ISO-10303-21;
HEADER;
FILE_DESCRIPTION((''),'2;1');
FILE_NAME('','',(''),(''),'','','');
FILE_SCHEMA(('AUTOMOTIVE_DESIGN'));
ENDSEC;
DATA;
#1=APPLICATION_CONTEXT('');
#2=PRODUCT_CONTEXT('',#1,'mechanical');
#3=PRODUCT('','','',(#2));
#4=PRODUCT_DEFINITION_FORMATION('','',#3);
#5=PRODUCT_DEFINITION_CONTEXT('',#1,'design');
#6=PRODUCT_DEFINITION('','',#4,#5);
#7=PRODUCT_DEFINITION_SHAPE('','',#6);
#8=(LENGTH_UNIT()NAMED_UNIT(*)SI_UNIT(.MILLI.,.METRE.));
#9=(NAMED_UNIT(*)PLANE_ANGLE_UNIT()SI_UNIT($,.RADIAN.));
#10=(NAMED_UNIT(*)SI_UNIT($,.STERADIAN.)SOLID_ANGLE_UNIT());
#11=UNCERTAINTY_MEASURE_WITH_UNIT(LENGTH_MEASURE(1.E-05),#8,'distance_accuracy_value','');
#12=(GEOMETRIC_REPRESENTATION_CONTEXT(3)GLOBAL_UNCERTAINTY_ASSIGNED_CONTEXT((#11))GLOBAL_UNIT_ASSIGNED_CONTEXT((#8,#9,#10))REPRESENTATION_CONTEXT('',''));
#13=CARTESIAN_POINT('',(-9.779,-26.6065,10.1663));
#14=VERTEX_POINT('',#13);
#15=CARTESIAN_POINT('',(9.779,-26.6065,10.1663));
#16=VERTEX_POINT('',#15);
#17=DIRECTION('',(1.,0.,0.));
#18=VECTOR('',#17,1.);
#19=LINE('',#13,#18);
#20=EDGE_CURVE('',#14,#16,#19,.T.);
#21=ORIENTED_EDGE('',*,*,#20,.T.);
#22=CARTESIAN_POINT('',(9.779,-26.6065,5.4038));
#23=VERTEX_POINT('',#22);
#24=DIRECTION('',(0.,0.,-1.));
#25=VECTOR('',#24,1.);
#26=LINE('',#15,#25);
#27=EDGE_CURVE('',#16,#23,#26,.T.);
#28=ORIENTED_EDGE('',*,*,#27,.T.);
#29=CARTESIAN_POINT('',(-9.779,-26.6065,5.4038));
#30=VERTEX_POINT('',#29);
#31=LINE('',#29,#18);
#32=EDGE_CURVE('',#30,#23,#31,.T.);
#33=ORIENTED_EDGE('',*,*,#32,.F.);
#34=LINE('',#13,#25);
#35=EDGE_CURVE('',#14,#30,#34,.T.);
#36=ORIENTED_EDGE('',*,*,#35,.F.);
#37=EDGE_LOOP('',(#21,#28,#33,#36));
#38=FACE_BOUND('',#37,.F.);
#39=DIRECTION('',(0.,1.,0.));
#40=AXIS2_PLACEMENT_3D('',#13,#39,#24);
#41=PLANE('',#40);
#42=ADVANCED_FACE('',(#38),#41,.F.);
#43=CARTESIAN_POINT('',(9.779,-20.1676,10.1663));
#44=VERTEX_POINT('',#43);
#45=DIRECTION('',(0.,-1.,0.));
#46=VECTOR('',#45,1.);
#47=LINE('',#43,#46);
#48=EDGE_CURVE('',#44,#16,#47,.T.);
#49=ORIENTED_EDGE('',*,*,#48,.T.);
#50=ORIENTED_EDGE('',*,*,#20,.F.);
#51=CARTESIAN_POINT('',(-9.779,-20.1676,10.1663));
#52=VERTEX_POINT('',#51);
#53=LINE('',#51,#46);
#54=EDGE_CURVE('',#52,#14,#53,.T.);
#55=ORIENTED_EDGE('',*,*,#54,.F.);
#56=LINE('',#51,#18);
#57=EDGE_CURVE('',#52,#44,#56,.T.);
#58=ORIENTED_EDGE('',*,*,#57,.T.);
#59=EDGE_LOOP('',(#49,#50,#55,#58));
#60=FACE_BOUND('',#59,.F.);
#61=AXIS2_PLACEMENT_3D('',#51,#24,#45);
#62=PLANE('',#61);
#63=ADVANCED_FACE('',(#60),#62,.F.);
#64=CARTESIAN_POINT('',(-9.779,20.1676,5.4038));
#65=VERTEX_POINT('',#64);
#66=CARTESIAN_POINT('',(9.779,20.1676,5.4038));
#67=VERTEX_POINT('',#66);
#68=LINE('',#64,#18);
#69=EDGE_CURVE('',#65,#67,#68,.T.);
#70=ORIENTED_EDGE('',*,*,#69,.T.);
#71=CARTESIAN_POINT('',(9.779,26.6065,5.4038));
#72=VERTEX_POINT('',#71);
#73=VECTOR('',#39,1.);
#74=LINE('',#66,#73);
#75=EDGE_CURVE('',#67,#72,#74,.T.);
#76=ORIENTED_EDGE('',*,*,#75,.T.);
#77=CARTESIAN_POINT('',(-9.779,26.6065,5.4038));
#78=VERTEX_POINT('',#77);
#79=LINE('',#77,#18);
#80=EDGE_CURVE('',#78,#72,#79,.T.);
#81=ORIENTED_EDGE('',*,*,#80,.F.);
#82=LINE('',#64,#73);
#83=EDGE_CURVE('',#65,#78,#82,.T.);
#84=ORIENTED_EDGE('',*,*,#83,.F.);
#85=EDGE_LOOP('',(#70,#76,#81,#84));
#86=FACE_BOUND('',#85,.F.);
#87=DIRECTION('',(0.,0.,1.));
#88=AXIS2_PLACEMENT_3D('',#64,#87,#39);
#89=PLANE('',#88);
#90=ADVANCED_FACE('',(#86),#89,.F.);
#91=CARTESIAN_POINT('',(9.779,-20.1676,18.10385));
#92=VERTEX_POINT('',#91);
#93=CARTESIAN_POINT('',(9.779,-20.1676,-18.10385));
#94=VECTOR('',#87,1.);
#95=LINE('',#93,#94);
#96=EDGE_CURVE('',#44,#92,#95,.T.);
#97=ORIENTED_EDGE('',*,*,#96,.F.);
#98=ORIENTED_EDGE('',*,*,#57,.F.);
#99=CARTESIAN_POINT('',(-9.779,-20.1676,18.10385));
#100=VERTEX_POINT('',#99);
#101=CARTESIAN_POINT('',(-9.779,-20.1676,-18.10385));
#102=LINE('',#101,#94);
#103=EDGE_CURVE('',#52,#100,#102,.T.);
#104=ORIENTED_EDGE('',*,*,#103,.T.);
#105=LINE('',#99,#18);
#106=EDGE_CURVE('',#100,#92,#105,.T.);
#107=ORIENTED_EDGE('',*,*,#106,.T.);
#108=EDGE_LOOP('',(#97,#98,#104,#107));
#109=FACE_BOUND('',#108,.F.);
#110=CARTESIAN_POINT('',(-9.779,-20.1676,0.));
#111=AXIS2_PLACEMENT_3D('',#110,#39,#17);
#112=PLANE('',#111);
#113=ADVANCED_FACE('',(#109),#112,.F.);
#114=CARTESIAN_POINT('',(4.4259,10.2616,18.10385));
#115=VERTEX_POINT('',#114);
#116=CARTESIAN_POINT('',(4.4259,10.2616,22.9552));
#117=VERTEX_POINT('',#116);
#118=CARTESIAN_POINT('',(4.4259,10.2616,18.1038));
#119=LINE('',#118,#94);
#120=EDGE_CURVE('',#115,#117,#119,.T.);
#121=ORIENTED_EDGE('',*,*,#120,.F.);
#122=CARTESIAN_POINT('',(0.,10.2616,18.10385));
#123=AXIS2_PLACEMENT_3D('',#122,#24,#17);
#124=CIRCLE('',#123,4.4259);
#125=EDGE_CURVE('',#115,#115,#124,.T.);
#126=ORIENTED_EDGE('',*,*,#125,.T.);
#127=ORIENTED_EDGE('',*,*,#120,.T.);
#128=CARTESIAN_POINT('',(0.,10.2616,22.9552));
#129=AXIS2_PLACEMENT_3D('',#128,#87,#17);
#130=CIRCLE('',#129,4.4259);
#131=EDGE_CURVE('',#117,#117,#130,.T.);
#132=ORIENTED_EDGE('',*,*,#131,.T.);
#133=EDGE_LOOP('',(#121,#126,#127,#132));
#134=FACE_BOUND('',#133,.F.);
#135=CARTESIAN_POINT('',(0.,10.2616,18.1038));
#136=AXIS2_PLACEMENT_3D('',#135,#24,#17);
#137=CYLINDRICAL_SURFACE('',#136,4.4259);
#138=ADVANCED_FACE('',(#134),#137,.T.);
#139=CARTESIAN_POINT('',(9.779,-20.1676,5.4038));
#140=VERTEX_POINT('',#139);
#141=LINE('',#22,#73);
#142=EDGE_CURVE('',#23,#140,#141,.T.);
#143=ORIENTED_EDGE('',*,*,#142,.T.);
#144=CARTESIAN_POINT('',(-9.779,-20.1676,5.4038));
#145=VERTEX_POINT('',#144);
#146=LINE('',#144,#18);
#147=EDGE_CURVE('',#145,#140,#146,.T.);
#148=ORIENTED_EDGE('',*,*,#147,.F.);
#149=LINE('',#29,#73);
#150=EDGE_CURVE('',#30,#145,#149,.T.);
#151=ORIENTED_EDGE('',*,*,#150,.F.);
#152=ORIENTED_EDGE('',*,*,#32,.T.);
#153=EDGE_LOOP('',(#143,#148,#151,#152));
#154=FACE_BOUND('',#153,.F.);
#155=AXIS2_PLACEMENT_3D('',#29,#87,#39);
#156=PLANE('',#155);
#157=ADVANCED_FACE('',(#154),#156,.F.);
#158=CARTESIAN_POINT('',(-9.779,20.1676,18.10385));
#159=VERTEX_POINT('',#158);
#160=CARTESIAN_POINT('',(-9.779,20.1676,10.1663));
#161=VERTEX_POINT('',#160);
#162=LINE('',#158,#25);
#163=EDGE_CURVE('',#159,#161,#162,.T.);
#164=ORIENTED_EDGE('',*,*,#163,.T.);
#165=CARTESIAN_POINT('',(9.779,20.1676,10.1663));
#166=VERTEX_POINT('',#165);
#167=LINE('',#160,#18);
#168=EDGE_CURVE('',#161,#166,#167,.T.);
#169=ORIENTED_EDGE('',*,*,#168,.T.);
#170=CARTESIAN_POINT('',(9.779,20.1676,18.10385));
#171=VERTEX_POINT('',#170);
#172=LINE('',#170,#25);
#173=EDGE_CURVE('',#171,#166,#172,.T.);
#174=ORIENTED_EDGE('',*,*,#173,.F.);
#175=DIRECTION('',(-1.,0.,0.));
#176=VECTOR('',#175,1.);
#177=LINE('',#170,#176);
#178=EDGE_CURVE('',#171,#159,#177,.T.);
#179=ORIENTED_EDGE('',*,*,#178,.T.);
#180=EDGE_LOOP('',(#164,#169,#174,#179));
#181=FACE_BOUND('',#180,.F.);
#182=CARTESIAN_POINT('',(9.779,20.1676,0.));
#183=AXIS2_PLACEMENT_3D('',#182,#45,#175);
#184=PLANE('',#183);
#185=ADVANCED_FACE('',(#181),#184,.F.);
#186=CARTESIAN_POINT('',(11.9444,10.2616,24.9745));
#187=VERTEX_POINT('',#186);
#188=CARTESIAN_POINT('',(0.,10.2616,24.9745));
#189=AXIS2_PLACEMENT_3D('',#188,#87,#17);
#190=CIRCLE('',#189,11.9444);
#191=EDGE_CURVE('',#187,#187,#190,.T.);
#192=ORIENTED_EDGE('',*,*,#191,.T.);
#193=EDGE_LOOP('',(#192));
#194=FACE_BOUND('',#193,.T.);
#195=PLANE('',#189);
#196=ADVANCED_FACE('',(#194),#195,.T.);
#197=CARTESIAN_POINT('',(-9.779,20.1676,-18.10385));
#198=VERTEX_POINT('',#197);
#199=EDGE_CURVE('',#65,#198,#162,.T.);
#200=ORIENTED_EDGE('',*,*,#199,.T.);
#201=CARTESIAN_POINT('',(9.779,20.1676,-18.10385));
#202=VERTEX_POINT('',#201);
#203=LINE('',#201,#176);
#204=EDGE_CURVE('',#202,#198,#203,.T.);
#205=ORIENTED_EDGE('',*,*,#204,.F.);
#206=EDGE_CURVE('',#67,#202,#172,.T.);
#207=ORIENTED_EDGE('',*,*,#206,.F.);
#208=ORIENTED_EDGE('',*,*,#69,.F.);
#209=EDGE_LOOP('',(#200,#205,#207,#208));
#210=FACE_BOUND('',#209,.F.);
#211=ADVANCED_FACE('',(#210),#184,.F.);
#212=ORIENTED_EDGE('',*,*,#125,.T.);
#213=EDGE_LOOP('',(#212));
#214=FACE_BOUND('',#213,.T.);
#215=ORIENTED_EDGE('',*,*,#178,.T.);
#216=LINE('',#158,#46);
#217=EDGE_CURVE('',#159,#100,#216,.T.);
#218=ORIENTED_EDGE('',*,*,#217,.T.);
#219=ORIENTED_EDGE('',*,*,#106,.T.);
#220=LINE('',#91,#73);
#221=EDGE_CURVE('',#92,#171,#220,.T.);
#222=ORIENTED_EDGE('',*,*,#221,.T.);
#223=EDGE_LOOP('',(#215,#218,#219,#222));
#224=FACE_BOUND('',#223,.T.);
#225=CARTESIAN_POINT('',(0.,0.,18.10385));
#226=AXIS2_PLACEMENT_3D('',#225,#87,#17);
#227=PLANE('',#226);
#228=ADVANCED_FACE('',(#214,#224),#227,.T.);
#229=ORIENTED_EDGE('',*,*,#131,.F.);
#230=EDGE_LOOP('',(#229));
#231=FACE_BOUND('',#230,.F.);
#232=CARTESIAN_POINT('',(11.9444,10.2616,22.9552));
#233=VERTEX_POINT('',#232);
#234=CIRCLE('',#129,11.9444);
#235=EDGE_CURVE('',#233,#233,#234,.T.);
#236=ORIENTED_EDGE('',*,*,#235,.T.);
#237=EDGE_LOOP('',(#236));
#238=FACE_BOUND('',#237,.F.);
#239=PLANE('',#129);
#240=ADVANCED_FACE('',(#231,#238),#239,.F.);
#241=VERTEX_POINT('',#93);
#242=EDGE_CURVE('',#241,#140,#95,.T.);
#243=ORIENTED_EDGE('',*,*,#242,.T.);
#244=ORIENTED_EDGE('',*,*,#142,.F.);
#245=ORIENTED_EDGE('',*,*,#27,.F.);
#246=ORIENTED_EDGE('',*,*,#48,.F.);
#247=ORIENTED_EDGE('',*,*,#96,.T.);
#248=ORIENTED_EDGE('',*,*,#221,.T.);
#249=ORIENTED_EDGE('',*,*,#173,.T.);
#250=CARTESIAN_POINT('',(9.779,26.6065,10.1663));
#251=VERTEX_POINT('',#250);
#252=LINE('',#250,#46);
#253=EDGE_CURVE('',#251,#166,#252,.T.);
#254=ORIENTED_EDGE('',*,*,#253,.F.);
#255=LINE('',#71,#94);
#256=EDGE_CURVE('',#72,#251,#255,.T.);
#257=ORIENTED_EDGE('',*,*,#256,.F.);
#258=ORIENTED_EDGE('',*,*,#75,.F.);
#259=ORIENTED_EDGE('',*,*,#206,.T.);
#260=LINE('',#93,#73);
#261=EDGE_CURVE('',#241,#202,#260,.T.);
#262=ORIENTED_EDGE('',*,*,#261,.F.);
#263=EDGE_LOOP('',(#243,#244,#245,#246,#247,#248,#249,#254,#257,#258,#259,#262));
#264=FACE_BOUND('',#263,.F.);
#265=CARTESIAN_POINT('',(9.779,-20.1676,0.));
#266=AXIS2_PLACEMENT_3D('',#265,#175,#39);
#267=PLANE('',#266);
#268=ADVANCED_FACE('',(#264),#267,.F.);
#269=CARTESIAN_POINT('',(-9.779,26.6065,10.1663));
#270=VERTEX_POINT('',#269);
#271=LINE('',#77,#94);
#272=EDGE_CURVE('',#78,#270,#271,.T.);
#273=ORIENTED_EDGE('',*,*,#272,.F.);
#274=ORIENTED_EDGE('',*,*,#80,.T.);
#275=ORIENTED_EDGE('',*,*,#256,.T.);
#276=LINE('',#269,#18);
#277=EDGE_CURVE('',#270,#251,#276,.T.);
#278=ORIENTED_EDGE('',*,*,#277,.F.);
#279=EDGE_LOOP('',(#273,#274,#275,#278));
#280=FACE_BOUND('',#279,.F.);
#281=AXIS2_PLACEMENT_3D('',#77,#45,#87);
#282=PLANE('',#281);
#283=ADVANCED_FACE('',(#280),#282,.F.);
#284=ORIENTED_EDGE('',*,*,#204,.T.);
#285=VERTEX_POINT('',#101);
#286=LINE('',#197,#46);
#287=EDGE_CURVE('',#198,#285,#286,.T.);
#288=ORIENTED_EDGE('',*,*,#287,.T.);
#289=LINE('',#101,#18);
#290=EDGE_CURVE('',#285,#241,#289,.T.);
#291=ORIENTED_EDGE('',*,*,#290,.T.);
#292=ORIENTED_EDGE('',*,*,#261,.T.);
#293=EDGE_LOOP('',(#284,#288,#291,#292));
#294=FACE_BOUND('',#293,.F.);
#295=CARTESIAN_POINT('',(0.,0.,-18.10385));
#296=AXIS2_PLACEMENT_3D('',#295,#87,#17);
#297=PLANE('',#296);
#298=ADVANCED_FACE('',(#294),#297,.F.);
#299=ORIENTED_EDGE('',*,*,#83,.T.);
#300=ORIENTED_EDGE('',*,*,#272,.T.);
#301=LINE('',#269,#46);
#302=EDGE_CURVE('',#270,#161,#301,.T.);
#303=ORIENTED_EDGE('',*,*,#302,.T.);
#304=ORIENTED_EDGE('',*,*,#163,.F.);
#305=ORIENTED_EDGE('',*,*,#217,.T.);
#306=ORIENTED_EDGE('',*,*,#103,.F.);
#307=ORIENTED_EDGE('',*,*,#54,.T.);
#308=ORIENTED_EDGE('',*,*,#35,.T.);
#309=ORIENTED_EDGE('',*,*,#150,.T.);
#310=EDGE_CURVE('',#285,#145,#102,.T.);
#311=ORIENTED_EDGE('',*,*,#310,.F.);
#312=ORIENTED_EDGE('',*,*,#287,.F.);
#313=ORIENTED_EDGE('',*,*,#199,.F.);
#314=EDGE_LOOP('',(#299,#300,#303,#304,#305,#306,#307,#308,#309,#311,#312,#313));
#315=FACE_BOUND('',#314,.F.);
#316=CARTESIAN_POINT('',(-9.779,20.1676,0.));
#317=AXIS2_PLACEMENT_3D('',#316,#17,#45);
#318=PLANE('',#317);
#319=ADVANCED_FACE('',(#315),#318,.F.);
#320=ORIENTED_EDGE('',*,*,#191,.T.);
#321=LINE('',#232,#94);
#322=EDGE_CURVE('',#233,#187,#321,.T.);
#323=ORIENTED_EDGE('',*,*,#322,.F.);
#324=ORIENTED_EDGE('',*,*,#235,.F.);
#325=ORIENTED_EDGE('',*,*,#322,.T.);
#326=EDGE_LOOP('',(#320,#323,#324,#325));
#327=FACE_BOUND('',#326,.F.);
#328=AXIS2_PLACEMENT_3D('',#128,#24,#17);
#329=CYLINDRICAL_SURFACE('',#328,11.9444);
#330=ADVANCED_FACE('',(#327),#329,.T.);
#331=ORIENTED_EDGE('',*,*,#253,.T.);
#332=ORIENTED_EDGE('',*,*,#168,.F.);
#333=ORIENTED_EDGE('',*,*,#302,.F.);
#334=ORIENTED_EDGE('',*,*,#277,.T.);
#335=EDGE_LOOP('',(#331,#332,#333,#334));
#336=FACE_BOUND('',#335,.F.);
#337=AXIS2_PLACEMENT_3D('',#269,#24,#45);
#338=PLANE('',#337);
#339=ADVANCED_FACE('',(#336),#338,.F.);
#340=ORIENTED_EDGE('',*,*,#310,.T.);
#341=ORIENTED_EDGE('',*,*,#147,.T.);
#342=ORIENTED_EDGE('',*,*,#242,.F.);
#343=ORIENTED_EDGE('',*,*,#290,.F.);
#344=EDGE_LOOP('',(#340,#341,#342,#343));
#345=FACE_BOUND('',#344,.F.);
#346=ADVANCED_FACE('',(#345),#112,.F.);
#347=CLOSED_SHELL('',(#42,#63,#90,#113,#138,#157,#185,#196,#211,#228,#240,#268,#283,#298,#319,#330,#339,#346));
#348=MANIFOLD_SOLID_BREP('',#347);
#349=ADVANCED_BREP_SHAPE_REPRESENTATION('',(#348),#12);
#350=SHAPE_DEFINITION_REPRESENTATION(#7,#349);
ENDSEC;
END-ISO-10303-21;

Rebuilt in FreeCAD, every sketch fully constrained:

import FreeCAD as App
import Part
import Sketcher
from FreeCAD import Vector
Q = App.Units.Quantity


def add_polygon(sketch, points):
    """Adds a closed chain of lines whose ends are joined by coincident constraints."""
    first, n = sketch.GeometryCount, len(points)
    for a, b in zip(points, points[1:] + points[:1]):
        sketch.addGeometry(Part.LineSegment(App.Vector(*a, 0), App.Vector(*b, 0)), False)
    for i in range(n):
        sketch.addConstraint(Sketcher.Constraint("Coincident", first + i, 2, first + (i + 1) % n, 1))

doc = App.newDocument("Part")
params = doc.addObject("Spreadsheet::Sheet", "Params")
for row, (alias, value) in enumerate([
    ("sketch1_width", "0.77 in"),
    ("sketch1_height", "1.588 in"),
    ("pad1_length", "1.4255 in"),
    ("pad2_length", "0.191 in"),
    ("pad3_length", "0.0795 in"),
    ("sketch4_height", "0.1875 in"),
    ("pad4_length", "0.77 in"),
], start=1):
    params.set(f"A{row}", alias)
    params.set(f"B{row}", "=" + value)
    params.setAlias(f"B{row}", alias)

body = doc.addObject("PartDesign::Body", "Body")

# Sketch on XY plane
sketch1 = body.newObject("Sketcher::SketchObject", "Sketch")
sketch1.AttachmentSupport = (doc.getObject("XY_Plane"), [""])
sketch1.MapMode = "FlatFace"
add_polygon(sketch1, [(-10, 20), (-10, -20), (10, -20), (10, 20)])  # lines 0-3
sketch1.addConstraint([
    Sketcher.Constraint("Vertical", 0),
    Sketcher.Constraint("Horizontal", 1),
    Sketcher.Constraint("Vertical", 2),
    Sketcher.Constraint("Horizontal", 3),
    Sketcher.Constraint("Symmetric", 0, 2, 2, 2, -1, 1),
    Sketcher.Constraint("DistanceX", 1, 1, 1, 2, Q("0.77 in")),
    Sketcher.Constraint("DistanceY", 0, 2, 0, 1, Q("1.588 in")),
])
sketch1.setExpression("Constraints[9]", "Params.sketch1_width")
sketch1.setExpression("Constraints[10]", "Params.sketch1_height")
pad1 = body.newObject("PartDesign::Pad", "Pad")
pad1.Profile = sketch1
pad1.setExpression("Length", "Params.pad1_length")
pad1.Midplane = True

# Sketch on XY plane
sketch2 = body.newObject("Sketcher::SketchObject", "Sketch001")
sketch2.AttachmentSupport = (doc.getObject("XY_Plane"), [""])
sketch2.MapMode = "FlatFace"
sketch2.AttachmentOffset = App.Placement(Vector(0, 0, 18.1038), App.Rotation())
sketch2.addGeometry(Part.Circle(Vector(0, 10.3, 0), Vector(0, 0, 1), 4.4), False)
sketch2.addConstraint([
    Sketcher.Constraint("PointOnObject", 0, 3, -2),
    Sketcher.Constraint("Diameter", 0, Q("0.3485 in")),
    Sketcher.Constraint("DistanceY", -1, 1, 0, 3, Q("0.404 in")),
])
pad2 = body.newObject("PartDesign::Pad", "Pad001")
pad2.Profile = sketch2
pad2.setExpression("Length", "Params.pad2_length")

# Sketch on XY plane
sketch3 = body.newObject("Sketcher::SketchObject", "Sketch002")
sketch3.AttachmentSupport = (doc.getObject("XY_Plane"), [""])
sketch3.MapMode = "FlatFace"
sketch3.AttachmentOffset = App.Placement(Vector(0, 0, 22.9552), App.Rotation())
sketch3.addGeometry(Part.Circle(Vector(0, 10, 0), Vector(0, 0, 1), 12), False)
sketch3.addConstraint([
    Sketcher.Constraint("PointOnObject", 0, 3, -2),
    Sketcher.Constraint("Diameter", 0, Q("0.9405 in")),
    Sketcher.Constraint("DistanceY", -1, 1, 0, 3, Q("0.404 in")),
])
pad3 = body.newObject("PartDesign::Pad", "Pad002")
pad3.Profile = sketch3
pad3.setExpression("Length", "Params.pad3_length")

# Sketch on YZ plane
sketch4 = body.newObject("Sketcher::SketchObject", "Sketch003")
sketch4.AttachmentSupport = (doc.getObject("YZ_Plane"), [""])
sketch4.MapMode = "FlatFace"
sketch4.AttachmentOffset = App.Placement(Vector(0, 0, -0.385 * 25.4), App.Rotation())
add_polygon(sketch4, [(20.2, 5.4), (20.2, 10.2), (26.6, 10.2), (26.6, 5.4)])  # lines 0-3
add_polygon(sketch4, [(-26.6, 5.4), (-26.6, 10.2), (-20.2, 10.2), (-20.2, 5.4)])  # lines 4-7
sketch4.addConstraint([
    Sketcher.Constraint("Vertical", 0),
    Sketcher.Constraint("Horizontal", 1),
    Sketcher.Constraint("Vertical", 2),
    Sketcher.Constraint("Horizontal", 3),
    Sketcher.Constraint("Vertical", 4),
    Sketcher.Constraint("Horizontal", 5),
    Sketcher.Constraint("Vertical", 6),
    Sketcher.Constraint("Horizontal", 7),
    Sketcher.Constraint("Symmetric", 1, 2, 4, 2, -2),
    Sketcher.Constraint("Symmetric", 3, 2, 6, 2, -2),
    Sketcher.Constraint("DistanceY", 0, 1, 0, 2, Q("0.1875 in")),
    Sketcher.Constraint("DistanceX", 1, 1, 1, 2, Q("0.2535 in")),
    Sketcher.Constraint("DistanceX", -1, 1, 0, 2, Q("0.794 in")),
    Sketcher.Constraint("DistanceY", -1, 1, 0, 2, 10.1663),
])
sketch4.setExpression("Constraints[18]", "Params.sketch4_height")
pad4 = body.newObject("PartDesign::Pad", "Pad003")
pad4.Profile = sketch4
pad4.setExpression("Length", "Params.pad4_length")

doc.recompute()
